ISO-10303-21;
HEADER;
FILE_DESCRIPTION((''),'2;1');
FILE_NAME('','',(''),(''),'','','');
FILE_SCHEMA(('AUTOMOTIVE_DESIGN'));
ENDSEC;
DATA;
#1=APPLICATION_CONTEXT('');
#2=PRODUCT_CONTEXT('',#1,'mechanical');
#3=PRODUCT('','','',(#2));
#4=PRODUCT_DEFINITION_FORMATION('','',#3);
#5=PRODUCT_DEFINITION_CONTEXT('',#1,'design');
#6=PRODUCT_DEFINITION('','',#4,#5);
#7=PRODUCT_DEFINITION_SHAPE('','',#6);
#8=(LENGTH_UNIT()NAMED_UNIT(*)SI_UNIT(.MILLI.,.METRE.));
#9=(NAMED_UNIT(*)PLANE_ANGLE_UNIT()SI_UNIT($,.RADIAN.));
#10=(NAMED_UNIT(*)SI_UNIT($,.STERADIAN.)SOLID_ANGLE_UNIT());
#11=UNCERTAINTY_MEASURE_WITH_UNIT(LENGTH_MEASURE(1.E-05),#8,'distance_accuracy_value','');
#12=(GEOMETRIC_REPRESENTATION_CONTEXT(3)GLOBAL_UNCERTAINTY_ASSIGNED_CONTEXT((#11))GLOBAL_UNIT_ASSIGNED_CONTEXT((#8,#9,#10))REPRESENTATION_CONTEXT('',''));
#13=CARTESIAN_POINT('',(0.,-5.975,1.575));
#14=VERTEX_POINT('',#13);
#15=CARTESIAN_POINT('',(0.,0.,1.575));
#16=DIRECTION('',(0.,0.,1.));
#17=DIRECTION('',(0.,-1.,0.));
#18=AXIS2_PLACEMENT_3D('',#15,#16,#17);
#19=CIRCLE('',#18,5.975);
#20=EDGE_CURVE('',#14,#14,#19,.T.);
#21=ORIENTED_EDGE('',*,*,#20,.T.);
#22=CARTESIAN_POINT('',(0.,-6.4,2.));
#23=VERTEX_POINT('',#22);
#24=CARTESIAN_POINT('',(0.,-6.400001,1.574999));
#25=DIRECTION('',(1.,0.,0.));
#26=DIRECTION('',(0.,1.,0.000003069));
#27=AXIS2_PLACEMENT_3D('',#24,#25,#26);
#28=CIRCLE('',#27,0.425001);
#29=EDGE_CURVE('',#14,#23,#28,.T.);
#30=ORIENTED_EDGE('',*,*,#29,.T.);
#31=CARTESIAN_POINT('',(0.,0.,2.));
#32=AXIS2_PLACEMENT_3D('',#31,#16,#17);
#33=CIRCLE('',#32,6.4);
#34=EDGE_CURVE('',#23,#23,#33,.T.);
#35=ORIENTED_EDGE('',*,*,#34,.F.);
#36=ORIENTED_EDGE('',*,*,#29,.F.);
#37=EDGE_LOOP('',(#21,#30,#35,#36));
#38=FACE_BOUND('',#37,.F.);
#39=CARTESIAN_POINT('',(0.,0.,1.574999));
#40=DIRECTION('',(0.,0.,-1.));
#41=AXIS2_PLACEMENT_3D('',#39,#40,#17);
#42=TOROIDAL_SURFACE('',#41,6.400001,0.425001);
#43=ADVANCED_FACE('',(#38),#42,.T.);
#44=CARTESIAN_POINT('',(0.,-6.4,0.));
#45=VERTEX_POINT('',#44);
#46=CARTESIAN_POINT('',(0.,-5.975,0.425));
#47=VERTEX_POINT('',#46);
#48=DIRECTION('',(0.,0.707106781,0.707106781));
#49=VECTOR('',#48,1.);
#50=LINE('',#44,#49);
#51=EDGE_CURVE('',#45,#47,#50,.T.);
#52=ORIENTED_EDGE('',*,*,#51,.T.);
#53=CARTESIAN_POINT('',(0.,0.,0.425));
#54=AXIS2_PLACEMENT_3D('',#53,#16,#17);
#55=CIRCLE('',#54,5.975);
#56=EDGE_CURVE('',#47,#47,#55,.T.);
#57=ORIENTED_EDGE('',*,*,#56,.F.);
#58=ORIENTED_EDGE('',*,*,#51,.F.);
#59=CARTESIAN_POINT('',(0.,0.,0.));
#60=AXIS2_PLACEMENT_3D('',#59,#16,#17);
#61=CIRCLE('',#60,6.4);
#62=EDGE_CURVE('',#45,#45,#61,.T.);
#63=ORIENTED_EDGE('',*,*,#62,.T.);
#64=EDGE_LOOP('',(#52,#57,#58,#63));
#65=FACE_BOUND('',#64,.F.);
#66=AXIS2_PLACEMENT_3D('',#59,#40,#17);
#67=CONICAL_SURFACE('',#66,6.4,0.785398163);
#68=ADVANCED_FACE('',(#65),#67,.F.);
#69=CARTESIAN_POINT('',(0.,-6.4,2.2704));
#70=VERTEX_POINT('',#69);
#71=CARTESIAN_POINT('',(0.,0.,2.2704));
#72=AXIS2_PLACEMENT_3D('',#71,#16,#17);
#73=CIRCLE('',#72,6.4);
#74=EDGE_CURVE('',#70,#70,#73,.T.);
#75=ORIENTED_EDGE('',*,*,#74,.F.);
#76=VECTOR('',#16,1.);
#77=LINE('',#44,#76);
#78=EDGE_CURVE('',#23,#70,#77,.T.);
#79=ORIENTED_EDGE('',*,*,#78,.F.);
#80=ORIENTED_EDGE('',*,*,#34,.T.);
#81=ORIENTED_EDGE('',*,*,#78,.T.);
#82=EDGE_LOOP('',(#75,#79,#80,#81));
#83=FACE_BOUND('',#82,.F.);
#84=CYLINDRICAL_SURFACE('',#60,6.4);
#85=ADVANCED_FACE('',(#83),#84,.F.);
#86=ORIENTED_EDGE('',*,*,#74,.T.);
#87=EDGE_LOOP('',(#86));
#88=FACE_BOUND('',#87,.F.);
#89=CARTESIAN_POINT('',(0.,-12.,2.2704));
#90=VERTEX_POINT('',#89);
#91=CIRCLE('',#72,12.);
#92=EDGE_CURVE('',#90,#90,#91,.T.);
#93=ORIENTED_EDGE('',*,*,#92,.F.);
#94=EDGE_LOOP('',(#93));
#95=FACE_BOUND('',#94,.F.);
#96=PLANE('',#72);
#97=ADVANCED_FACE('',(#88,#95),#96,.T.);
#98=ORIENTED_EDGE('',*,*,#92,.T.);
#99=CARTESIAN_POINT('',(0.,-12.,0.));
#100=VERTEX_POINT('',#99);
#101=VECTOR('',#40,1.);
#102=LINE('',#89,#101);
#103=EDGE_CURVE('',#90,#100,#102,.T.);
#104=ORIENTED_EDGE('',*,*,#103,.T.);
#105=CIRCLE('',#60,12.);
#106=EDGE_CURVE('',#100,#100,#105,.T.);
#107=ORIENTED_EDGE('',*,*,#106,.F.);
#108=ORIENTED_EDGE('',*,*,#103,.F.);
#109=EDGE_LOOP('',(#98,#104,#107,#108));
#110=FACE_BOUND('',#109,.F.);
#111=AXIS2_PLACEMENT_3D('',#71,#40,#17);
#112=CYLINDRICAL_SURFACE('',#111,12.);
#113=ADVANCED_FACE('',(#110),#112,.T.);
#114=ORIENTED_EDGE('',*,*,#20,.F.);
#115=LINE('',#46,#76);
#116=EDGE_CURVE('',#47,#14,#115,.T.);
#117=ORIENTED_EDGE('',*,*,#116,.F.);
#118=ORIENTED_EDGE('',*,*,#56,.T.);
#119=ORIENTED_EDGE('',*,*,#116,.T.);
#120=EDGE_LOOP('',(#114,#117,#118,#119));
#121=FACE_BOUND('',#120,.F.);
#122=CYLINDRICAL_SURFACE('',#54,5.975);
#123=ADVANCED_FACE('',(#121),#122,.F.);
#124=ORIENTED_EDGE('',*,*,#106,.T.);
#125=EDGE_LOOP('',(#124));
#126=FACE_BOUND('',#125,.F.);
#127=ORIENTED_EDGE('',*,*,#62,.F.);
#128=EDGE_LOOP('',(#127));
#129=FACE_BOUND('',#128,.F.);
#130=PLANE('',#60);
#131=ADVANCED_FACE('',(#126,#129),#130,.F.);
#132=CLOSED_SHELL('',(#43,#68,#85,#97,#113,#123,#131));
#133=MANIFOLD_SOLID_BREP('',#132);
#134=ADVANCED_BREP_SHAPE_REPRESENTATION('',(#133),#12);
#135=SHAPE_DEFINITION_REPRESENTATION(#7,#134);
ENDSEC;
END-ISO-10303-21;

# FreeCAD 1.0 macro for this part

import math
import FreeCAD as App
import Part
import Sketcher
Q = App.Units.Quantity

doc = App.newDocument("Part")
body = doc.addObject("PartDesign::Body", "Body")

sketch1 = body.newObject("Sketcher::SketchObject", "Sketch")
sketch1.AttachmentSupport = (doc.getObject("YZ_Plane"), [""])
sketch1.MapMode = "FlatFace"
sketch1.addGeometry(Part.LineSegment(App.Vector(-12, 0, 0), App.Vector(-6.4, 0, 0)), False)
sketch1.addGeometry(Part.LineSegment(App.Vector(-6.4, 0, 0), App.Vector(-5.97, 0.42, 0)), False)
sketch1.addGeometry(Part.LineSegment(App.Vector(-5.97, 0.42, 0), App.Vector(-5.97, 1.57, 0)), False)
sketch1.addGeometry(Part.ArcOfCircle(Part.Circle(App.Vector(-6.4, 1.57, 0), App.Vector(0, 0, 1), 0.43), math.radians(0), math.radians(90)), False)
sketch1.addGeometry(Part.LineSegment(App.Vector(-6.4, 2, 0), App.Vector(-6.4, 2.27, 0)), False)
sketch1.addGeometry(Part.LineSegment(App.Vector(-6.4, 2.27, 0), App.Vector(-12, 2.27, 0)), False)
sketch1.addGeometry(Part.LineSegment(App.Vector(-12, 2.27, 0), App.Vector(-12, 0, 0)), False)
sketch1.addConstraint(Sketcher.Constraint("Coincident", 0, 2, 1, 1))
sketch1.addConstraint(Sketcher.Constraint("Coincident", 1, 2, 2, 1))
sketch1.addConstraint(Sketcher.Constraint("Coincident", 2, 2, 3, 1))
sketch1.addConstraint(Sketcher.Constraint("Coincident", 3, 2, 4, 1))
sketch1.addConstraint(Sketcher.Constraint("Coincident", 4, 2, 5, 1))
sketch1.addConstraint(Sketcher.Constraint("Coincident", 5, 2, 6, 1))
sketch1.addConstraint(Sketcher.Constraint("Coincident", 6, 2, 0, 1))
sketch1.addConstraint(Sketcher.Constraint("Horizontal", 0))
sketch1.addConstraint(Sketcher.Constraint("Vertical", 2))
sketch1.addConstraint(Sketcher.Constraint("Vertical", 4))
sketch1.addConstraint(Sketcher.Constraint("Horizontal", 5))
sketch1.addConstraint(Sketcher.Constraint("Vertical", 6))
sketch1.addConstraint(Sketcher.Constraint("PointOnObject", 0, 2, -1))
sketch1.addConstraint(Sketcher.Constraint("Horizontal", 3, 3, 2, 2))
sketch1.addConstraint(Sketcher.Constraint("Vertical", 3, 3, 0, 2))
sketch1.addConstraint(Sketcher.Constraint("Vertical", 0, 2, 3, 2))
sketch1.addConstraint(Sketcher.Constraint("Angle", 1, Q("45 deg")))
sketch1.addConstraint(Sketcher.Constraint("DistanceX", 0, 1, 0, 2, Q("5.6 mm")))
sketch1.addConstraint(Sketcher.Constraint("DistanceY", -1, 1, 3, 2, Q("2 mm")))
sketch1.addConstraint(Sketcher.Constraint("DistanceX", 5, 2, -1, 1, Q("12 mm")))
sketch1.addConstraint(Sketcher.Constraint("Radius", 3, Q("0.425001 mm")))
sketch1.addConstraint(Sketcher.Constraint("DistanceY", 4, 1, 4, 2, Q("0.2704 mm")))
revolution = body.newObject("PartDesign::Revolution", "Revolution")
revolution.Profile = sketch1
revolution.ReferenceAxis = (sketch1, ["V_Axis"])
revolution.Angle = 360

doc.recompute()
